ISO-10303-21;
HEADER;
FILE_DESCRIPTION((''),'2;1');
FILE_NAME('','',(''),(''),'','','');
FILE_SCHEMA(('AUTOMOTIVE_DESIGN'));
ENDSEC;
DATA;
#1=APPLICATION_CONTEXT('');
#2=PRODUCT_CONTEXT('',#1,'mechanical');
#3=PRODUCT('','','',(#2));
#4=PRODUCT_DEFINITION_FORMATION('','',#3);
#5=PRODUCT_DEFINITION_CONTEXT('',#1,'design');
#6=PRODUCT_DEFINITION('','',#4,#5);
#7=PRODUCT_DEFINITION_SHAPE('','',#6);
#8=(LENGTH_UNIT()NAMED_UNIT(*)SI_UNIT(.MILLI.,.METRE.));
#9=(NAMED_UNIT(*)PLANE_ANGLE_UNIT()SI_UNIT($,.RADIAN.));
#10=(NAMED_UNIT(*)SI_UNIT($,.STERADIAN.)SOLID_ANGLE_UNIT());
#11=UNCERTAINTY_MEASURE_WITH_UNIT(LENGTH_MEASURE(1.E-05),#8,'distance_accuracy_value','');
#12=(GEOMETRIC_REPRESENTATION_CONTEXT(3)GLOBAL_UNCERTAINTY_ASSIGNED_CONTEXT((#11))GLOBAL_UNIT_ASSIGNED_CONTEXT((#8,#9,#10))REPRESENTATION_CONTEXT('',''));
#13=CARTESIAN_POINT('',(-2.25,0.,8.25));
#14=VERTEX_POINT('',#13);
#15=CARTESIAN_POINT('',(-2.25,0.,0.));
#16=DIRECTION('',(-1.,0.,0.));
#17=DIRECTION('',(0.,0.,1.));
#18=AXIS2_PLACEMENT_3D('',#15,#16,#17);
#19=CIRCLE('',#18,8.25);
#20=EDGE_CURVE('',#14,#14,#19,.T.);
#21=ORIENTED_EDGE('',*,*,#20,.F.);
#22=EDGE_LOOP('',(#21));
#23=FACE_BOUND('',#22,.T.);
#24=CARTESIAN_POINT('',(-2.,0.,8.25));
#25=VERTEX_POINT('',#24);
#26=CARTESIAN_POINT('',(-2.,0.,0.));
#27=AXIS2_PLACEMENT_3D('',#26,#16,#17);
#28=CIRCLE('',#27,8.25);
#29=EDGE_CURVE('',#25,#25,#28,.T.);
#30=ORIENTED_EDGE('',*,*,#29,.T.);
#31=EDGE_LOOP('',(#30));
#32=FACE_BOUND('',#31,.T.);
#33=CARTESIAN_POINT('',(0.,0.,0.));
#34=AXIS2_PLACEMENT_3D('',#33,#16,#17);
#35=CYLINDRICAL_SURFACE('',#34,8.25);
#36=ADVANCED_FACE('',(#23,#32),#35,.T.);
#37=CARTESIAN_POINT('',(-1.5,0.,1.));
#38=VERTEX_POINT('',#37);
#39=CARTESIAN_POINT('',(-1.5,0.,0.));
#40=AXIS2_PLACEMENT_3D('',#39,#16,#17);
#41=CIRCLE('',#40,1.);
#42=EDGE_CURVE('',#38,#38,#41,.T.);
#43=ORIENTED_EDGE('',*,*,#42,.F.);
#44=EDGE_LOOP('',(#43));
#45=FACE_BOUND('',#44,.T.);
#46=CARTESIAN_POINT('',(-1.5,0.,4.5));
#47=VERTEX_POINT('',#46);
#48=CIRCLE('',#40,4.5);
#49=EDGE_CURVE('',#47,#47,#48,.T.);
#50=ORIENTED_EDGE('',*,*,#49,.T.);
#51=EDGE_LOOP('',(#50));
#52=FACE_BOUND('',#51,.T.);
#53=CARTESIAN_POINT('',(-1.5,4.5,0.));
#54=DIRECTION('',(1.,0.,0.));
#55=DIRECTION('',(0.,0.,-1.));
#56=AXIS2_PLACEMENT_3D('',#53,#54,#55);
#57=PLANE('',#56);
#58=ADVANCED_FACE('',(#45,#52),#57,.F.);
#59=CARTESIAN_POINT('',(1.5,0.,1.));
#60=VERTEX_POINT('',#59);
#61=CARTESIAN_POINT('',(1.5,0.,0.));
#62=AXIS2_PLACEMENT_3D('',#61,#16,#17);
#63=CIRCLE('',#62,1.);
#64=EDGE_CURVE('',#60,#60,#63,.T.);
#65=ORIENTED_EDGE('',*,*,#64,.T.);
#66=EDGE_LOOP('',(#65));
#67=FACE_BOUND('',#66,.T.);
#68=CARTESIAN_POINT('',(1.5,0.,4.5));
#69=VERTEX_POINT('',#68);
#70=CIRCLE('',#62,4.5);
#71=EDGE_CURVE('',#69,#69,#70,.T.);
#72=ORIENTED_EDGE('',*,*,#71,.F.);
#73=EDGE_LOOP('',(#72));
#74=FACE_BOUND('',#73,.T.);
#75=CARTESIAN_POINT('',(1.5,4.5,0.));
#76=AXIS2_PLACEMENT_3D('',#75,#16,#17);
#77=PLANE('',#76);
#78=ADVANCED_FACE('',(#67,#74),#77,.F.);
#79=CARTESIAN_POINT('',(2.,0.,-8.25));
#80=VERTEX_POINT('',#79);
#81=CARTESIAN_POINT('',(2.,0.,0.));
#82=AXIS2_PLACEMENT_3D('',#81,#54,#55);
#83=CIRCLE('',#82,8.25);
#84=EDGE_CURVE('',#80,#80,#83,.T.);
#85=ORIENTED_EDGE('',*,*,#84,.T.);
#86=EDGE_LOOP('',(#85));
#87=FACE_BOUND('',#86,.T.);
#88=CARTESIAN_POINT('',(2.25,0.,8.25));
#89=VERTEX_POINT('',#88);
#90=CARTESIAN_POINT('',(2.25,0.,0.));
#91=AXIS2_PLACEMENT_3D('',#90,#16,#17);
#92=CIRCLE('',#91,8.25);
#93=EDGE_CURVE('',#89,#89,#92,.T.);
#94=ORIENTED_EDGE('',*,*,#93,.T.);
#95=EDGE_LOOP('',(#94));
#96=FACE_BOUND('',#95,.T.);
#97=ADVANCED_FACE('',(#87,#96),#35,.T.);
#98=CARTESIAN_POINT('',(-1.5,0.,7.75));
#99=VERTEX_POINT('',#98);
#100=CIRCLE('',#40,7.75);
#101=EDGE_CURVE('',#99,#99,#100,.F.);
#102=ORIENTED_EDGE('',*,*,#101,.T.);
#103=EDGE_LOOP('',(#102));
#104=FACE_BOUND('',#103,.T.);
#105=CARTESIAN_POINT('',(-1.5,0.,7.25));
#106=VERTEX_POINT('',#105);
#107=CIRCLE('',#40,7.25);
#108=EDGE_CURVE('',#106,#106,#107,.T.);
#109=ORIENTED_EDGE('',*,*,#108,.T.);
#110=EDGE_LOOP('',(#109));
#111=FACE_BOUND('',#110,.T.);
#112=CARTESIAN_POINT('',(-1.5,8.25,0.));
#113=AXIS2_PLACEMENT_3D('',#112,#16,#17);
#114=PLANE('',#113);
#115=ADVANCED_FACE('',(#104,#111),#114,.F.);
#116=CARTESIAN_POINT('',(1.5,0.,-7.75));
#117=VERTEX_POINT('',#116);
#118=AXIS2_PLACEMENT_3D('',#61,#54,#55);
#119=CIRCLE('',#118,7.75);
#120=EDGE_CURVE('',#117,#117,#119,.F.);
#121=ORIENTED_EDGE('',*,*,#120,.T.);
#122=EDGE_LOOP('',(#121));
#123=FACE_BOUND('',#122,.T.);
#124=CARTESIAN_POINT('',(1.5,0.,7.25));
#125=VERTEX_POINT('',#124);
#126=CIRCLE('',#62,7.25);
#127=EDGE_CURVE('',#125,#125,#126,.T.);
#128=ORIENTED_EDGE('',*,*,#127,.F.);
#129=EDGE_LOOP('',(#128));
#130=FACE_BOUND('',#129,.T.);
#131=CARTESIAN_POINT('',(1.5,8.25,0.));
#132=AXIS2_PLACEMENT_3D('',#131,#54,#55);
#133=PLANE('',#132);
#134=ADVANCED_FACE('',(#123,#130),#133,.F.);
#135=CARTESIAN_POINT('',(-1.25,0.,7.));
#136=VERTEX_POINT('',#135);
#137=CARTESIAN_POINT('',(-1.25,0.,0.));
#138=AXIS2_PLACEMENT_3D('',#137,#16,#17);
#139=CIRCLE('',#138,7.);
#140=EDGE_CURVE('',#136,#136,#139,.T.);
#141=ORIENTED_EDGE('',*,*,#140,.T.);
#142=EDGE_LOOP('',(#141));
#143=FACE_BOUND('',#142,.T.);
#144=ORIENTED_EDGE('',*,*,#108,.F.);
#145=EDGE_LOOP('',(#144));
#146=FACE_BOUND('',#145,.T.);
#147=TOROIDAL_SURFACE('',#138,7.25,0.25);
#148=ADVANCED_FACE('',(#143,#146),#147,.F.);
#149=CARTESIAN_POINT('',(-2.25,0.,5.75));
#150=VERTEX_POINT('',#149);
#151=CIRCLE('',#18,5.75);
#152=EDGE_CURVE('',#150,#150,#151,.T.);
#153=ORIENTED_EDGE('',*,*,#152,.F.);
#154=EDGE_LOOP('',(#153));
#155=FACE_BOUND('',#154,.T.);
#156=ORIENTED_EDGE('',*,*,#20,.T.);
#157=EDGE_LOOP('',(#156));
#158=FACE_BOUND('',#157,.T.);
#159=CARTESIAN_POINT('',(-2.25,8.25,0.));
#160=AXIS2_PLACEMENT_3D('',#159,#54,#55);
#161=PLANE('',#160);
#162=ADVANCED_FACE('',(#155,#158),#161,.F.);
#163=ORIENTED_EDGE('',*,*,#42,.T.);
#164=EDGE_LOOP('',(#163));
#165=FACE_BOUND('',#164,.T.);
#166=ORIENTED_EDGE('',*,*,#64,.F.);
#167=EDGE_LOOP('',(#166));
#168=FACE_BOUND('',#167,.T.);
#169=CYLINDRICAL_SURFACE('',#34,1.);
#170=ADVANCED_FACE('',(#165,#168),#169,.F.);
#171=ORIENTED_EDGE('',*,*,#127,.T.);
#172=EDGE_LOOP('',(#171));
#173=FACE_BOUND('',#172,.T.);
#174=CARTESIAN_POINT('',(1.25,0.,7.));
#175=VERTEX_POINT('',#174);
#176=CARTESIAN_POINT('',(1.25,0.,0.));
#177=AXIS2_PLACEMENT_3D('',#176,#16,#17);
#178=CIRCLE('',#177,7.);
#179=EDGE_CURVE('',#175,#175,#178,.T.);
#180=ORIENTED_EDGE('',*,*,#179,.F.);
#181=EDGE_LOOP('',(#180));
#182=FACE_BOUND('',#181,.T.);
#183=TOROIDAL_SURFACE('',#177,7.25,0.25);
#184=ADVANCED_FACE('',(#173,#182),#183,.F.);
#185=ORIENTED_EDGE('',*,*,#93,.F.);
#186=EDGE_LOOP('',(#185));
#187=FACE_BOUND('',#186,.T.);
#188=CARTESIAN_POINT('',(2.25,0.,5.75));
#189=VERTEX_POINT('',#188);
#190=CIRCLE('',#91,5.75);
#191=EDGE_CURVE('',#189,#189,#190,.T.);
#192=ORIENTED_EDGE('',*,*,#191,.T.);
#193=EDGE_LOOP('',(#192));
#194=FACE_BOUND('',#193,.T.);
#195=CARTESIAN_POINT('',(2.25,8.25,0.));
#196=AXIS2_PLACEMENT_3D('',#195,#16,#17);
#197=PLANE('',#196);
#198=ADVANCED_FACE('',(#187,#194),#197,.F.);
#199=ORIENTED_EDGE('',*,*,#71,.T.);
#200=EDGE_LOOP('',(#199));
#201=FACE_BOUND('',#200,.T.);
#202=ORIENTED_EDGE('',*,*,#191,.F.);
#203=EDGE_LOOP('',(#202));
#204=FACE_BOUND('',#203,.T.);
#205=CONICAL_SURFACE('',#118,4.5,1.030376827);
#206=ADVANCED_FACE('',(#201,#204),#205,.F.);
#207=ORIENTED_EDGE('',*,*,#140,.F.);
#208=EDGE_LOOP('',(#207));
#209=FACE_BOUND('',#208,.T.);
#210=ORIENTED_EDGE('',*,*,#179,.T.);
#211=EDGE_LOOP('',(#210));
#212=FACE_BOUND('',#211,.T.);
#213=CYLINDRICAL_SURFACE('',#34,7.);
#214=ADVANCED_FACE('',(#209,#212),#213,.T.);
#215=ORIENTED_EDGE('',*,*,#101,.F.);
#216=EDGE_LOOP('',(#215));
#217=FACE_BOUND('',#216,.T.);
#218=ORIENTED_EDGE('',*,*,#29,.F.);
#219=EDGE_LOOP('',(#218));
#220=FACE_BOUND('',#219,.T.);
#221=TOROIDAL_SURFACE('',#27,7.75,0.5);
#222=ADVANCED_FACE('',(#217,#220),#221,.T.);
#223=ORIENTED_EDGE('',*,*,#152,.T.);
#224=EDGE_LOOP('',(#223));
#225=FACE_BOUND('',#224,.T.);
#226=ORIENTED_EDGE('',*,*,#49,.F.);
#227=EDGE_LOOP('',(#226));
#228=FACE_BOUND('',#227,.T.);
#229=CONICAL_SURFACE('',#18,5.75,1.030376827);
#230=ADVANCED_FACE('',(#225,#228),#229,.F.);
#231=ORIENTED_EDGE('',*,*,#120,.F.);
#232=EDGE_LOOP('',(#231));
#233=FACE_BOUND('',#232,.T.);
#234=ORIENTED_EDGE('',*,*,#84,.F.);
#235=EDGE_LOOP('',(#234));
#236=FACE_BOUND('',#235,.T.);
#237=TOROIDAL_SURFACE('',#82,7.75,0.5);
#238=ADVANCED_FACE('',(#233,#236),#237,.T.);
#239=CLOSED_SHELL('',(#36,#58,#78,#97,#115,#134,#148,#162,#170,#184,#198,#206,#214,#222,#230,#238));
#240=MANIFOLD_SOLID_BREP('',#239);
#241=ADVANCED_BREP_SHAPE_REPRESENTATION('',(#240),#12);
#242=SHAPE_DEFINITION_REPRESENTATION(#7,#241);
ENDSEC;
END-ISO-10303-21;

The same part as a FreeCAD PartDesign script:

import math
import FreeCAD as App
import Part
import Sketcher
from FreeCAD import Vector


def edges_at(feature, points):
    """Names of the edges that pass closest to the given points."""
    edges = feature.Shape.Edges
    near = lambda p: min(range(len(edges)), key=lambda i: edges[i].distToShape(Part.Vertex(*p))[0])
    return sorted({f"Edge{near(p) + 1}" for p in points})

doc = App.newDocument("Part")
body = doc.addObject("PartDesign::Body", "Body")

# Sketch on XY plane
sketch1 = body.newObject("Sketcher::SketchObject", "Sketch")
sketch1.AttachmentSupport = (doc.getObject("XY_Plane"), [""])
sketch1.MapMode = "FlatFace"
sketch1.addGeometry(Part.LineSegment(Vector(-1.5, 1, 0), Vector(1.5, 1, 0)), False)
sketch1.addGeometry(Part.LineSegment(Vector(1.5, 1, 0), Vector(1.5, 4.5, 0)), False)
sketch1.addGeometry(Part.LineSegment(Vector(1.5, 4.5, 0), Vector(2.25, 5.75, 0)), False)
sketch1.addGeometry(Part.LineSegment(Vector(2.25, 5.75, 0), Vector(2.25, 8.25, 0)), False)
sketch1.addGeometry(Part.LineSegment(Vector(2.25, 8.25, 0), Vector(1.5, 8.25, 0)), False)
sketch1.addGeometry(Part.LineSegment(Vector(1.5, 8.25, 0), Vector(1.5, 7.25, 0)), False)
sketch1.addGeometry(Part.ArcOfCircle(Part.Circle(Vector(1.25, 7.25, 0), Vector(0, 0, 1), 0.25), math.radians(-90), math.radians(0)), False)
sketch1.addGeometry(Part.LineSegment(Vector(1.25, 7, 0), Vector(-1.25, 7, 0)), False)
sketch1.addGeometry(Part.ArcOfCircle(Part.Circle(Vector(-1.25, 7.25, 0), Vector(0, 0, 1), 0.25), math.radians(-180), math.radians(-90)), False)
sketch1.addGeometry(Part.LineSegment(Vector(-1.5, 7.25, 0), Vector(-1.5, 8.25, 0)), False)
sketch1.addGeometry(Part.LineSegment(Vector(-1.5, 8.25, 0), Vector(-2.25, 8.25, 0)), False)
sketch1.addGeometry(Part.LineSegment(Vector(-2.25, 8.25, 0), Vector(-2.25, 5.75, 0)), False)
sketch1.addGeometry(Part.LineSegment(Vector(-2.25, 5.75, 0), Vector(-1.5, 4.5, 0)), False)
sketch1.addGeometry(Part.LineSegment(Vector(-1.5, 4.5, 0), Vector(-1.5, 1, 0)), False)
sketch1.addConstraint(Sketcher.Constraint("Coincident", 0, 2, 1, 1))
sketch1.addConstraint(Sketcher.Constraint("Coincident", 1, 2, 2, 1))
sketch1.addConstraint(Sketcher.Constraint("Coincident", 2, 2, 3, 1))
sketch1.addConstraint(Sketcher.Constraint("Coincident", 3, 2, 4, 1))
sketch1.addConstraint(Sketcher.Constraint("Coincident", 4, 2, 5, 1))
sketch1.addConstraint(Sketcher.Constraint("Tangent", 5, 2, 6, 2))
sketch1.addConstraint(Sketcher.Constraint("Tangent", 6, 1, 7, 1))
sketch1.addConstraint(Sketcher.Constraint("Tangent", 7, 2, 8, 2))
sketch1.addConstraint(Sketcher.Constraint("Tangent", 8, 1, 9, 1))
sketch1.addConstraint(Sketcher.Constraint("Coincident", 9, 2, 10, 1))
sketch1.addConstraint(Sketcher.Constraint("Coincident", 10, 2, 11, 1))
sketch1.addConstraint(Sketcher.Constraint("Coincident", 11, 2, 12, 1))
sketch1.addConstraint(Sketcher.Constraint("Coincident", 12, 2, 13, 1))
sketch1.addConstraint(Sketcher.Constraint("Coincident", 13, 2, 0, 1))
sketch1.addConstraint(Sketcher.Constraint("Horizontal", 0))
sketch1.addConstraint(Sketcher.Constraint("Vertical", 1))
sketch1.addConstraint(Sketcher.Constraint("Vertical", 3))
sketch1.addConstraint(Sketcher.Constraint("Horizontal", 4))
sketch1.addConstraint(Sketcher.Constraint("Vertical", 5))
sketch1.addConstraint(Sketcher.Constraint("Horizontal", 7))
sketch1.addConstraint(Sketcher.Constraint("Vertical", 9))
sketch1.addConstraint(Sketcher.Constraint("Horizontal", 10))
sketch1.addConstraint(Sketcher.Constraint("Vertical", 11))
sketch1.addConstraint(Sketcher.Constraint("Vertical", 13))
sketch1.addConstraint(Sketcher.Constraint("Equal", 6, 8))
sketch1.addConstraint(Sketcher.Constraint("Symmetric", 4, 2, 9, 2, -2))
sketch1.addConstraint(Sketcher.Constraint("Symmetric", 2, 2, 11, 2, -2))
sketch1.addConstraint(Sketcher.Constraint("Symmetric", 1, 2, 12, 2, -2))
sketch1.addConstraint(Sketcher.Constraint("Vertical", 1, 2, 4, 2))
sketch1.addConstraint(Sketcher.Constraint("Equal", 7, 3))
sketch1.addConstraint(Sketcher.Constraint("DistanceX", 0, 1, 0, 2, 3.0))
sketch1.addConstraint(Sketcher.Constraint("DistanceY", 5, 2, 5, 1, 1.0))
sketch1.addConstraint(Sketcher.Constraint("Radius", 6, 0.25))
sketch1.addConstraint(Sketcher.Constraint("DistanceY", 1, 1, 1, 2, 3.5))
sketch1.addConstraint(Sketcher.Constraint("DistanceY", -1, 1, 0, 2, 1.0))
sketch1.addConstraint(Sketcher.Constraint("DistanceY", -1, 1, 6, 1, 7.0))
sketch1.addConstraint(Sketcher.Constraint("DistanceX", 6, 3, 2, 2, 1.0))
revolution = body.newObject("PartDesign::Revolution", "Revolution")
revolution.Profile = sketch1
revolution.ReferenceAxis = (sketch1, ["H_Axis"])
revolution.Angle = 360
doc.recompute()

fillet = body.newObject("PartDesign::Fillet", "Fillet")
fillet.Base = (revolution, edges_at(revolution, [(-1.5, -8.25, 0), (1.5, -8.25, 0)]))
fillet.Radius = 0.5

doc.recompute()
